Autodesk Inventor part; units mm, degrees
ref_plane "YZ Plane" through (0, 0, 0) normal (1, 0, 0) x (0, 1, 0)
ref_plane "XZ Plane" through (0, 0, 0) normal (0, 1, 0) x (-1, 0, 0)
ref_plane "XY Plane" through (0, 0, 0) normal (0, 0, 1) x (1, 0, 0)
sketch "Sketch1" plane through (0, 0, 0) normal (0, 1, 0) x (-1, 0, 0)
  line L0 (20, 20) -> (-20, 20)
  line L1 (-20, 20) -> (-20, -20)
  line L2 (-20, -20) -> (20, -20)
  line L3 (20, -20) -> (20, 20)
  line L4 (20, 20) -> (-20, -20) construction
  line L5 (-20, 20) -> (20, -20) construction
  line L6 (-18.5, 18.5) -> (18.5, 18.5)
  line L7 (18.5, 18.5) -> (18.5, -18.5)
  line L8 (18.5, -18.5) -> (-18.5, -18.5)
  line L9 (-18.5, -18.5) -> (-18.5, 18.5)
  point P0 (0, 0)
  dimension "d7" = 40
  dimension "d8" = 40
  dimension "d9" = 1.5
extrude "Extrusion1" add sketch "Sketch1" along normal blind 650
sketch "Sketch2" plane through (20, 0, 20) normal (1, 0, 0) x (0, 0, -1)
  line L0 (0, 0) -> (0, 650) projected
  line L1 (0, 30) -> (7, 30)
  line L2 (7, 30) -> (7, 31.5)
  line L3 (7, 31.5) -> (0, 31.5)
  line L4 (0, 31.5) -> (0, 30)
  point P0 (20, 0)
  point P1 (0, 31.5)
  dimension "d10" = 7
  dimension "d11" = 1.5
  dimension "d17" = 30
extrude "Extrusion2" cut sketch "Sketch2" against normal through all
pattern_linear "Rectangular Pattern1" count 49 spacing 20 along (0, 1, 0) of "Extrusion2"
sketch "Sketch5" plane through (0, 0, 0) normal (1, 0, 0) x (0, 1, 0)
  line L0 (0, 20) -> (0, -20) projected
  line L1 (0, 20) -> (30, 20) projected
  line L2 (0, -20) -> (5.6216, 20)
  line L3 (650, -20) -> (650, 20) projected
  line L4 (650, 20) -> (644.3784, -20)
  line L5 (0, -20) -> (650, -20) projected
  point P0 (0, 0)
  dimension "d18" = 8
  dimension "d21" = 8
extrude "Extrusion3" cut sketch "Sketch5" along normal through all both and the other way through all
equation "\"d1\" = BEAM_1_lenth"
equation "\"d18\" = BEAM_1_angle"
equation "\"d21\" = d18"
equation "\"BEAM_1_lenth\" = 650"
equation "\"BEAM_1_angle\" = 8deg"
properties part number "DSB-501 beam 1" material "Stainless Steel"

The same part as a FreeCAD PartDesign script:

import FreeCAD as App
import Part
import Sketcher
Q = App.Units.Quantity


def add_polygon(sketch, points):
    """Adds a closed chain of lines whose ends are joined by coincident constraints."""
    first, n = sketch.GeometryCount, len(points)
    for a, b in zip(points, points[1:] + points[:1]):
        sketch.addGeometry(Part.LineSegment(App.Vector(*a, 0), App.Vector(*b, 0)), False)
    for i in range(n):
        sketch.addConstraint(Sketcher.Constraint("Coincident", first + i, 2, first + (i + 1) % n, 1))

doc = App.newDocument("Part")
body = doc.addObject("PartDesign::Body", "Body")

sketch1 = doc.addObject("Sketcher::SketchObject", "Sketch")
body.addObject(sketch1)
sketch1.AttachmentSupport = (doc.XZ_Plane, [""])
sketch1.MapMode = "FlatFace"
add_polygon(sketch1, [(-20, -20), (-20, 20), (20, 20), (20, -20)])
add_polygon(sketch1, [(18, -18), (18, 18), (-18, 18), (-18, -18)])
sketch1.addConstraint(Sketcher.Constraint("Vertical", 0))
sketch1.addConstraint(Sketcher.Constraint("Horizontal", 1))
sketch1.addConstraint(Sketcher.Constraint("Vertical", 2))
sketch1.addConstraint(Sketcher.Constraint("Horizontal", 3))
sketch1.addConstraint(Sketcher.Constraint("Vertical", 4))
sketch1.addConstraint(Sketcher.Constraint("Horizontal", 5))
sketch1.addConstraint(Sketcher.Constraint("Vertical", 6))
sketch1.addConstraint(Sketcher.Constraint("Horizontal", 7))
sketch1.addConstraint(Sketcher.Constraint("Symmetric", 0, 2, 2, 2, -1, 1))
sketch1.addConstraint(Sketcher.Constraint("Symmetric", 4, 2, 6, 2, -1, 1))
sketch1.addConstraint(Sketcher.Constraint("Equal", 3, 0))
sketch1.addConstraint(Sketcher.Constraint("Equal", 7, 4))
sketch1.addConstraint(Sketcher.Constraint("DistanceX", 1, 1, 1, 2, Q("40 mm")))
sketch1.addConstraint(Sketcher.Constraint("DistanceX", 4, 2, 1, 2, Q("1.5 mm")))
pad1 = doc.addObject("PartDesign::Pad", "Pad")
body.addObject(pad1)
pad1.Profile = sketch1
pad1.Length = 650
pad1.Reversed = True

sketch2 = doc.addObject("Sketcher::SketchObject", "Sketch001")
body.addObject(sketch2)
sketch2.AttachmentSupport = (doc.YZ_Plane, [""])
sketch2.MapMode = "FlatFace"
sketch2.AttachmentOffset = App.Placement(App.Vector(0, 0, 20), App.Rotation())
add_polygon(sketch2, [(31.5, 20), (30, 20), (30, 13), (31.5, 13)])
sketch2.addConstraint(Sketcher.Constraint("Horizontal", 0))
sketch2.addConstraint(Sketcher.Constraint("Vertical", 1))
sketch2.addConstraint(Sketcher.Constraint("Horizontal", 2))
sketch2.addConstraint(Sketcher.Constraint("Vertical", 3))
sketch2.addConstraint(Sketcher.Constraint("DistanceY", 1, 2, 1, 1, Q("7 mm")))
sketch2.addConstraint(Sketcher.Constraint("DistanceX", 0, 2, 0, 1, Q("1.5 mm")))
sketch2.addConstraint(Sketcher.Constraint("DistanceX", -1, 1, 0, 2, Q("30 mm")))
sketch2.addConstraint(Sketcher.Constraint("DistanceY", -1, 1, 0, 2, Q("20 mm")))
pocket1 = doc.addObject("PartDesign::Pocket", "Pocket")
body.addObject(pocket1)
pocket1.Profile = sketch2
pocket1.Type = "ThroughAll"
doc.recompute()

linearpattern = doc.addObject("PartDesign::LinearPattern", "LinearPattern")
body.addObject(linearpattern)
linearpattern.Originals = [pocket1]
linearpattern.Direction = (doc.Y_Axis, [""])
linearpattern.Mode = "offset"
linearpattern.Offset = 20
linearpattern.Occurrences = 49
body.Tip = linearpattern

sketch3 = doc.addObject("Sketcher::SketchObject", "Sketch002")
body.addObject(sketch3)
sketch3.AttachmentSupport = (doc.YZ_Plane, [""])
sketch3.MapMode = "FlatFace"
add_polygon(sketch3, [(6, 20), (0, 20), (0, -20)])
add_polygon(sketch3, [(650, 20), (644, -20), (650, -20)])
sketch3.addConstraint(Sketcher.Constraint("Horizontal", 0))
sketch3.addConstraint(Sketcher.Constraint("Vertical", 1))
sketch3.addConstraint(Sketcher.Constraint("Horizontal", 4))
sketch3.addConstraint(Sketcher.Constraint("Vertical", 5))
sketch3.addConstraint(Sketcher.Constraint("Symmetric", 0, 2, 1, 2, -1, 1))
sketch3.addConstraint(Sketcher.Constraint("Parallel", 2, 3))
sketch3.addConstraint(Sketcher.Constraint("Horizontal", 1, 2, 3, 2))
sketch3.addConstraint(Sketcher.Constraint("Horizontal", 2, 2, 5, 2))
sketch3.addConstraint(Sketcher.Constraint("DistanceY", 1, 2, 1, 1, Q("40 mm")))
sketch3.addConstraint(Sketcher.Constraint("Angle", 2, Q("82 deg")))
sketch3.addConstraint(Sketcher.Constraint("DistanceX", -1, 1, 4, 2, Q("650 mm")))
pocket2 = doc.addObject("PartDesign::Pocket", "Pocket001")
body.addObject(pocket2)
pocket2.Profile = sketch3
pocket2.Type = "ThroughAll"
pocket2.Midplane = True

doc.recompute()
